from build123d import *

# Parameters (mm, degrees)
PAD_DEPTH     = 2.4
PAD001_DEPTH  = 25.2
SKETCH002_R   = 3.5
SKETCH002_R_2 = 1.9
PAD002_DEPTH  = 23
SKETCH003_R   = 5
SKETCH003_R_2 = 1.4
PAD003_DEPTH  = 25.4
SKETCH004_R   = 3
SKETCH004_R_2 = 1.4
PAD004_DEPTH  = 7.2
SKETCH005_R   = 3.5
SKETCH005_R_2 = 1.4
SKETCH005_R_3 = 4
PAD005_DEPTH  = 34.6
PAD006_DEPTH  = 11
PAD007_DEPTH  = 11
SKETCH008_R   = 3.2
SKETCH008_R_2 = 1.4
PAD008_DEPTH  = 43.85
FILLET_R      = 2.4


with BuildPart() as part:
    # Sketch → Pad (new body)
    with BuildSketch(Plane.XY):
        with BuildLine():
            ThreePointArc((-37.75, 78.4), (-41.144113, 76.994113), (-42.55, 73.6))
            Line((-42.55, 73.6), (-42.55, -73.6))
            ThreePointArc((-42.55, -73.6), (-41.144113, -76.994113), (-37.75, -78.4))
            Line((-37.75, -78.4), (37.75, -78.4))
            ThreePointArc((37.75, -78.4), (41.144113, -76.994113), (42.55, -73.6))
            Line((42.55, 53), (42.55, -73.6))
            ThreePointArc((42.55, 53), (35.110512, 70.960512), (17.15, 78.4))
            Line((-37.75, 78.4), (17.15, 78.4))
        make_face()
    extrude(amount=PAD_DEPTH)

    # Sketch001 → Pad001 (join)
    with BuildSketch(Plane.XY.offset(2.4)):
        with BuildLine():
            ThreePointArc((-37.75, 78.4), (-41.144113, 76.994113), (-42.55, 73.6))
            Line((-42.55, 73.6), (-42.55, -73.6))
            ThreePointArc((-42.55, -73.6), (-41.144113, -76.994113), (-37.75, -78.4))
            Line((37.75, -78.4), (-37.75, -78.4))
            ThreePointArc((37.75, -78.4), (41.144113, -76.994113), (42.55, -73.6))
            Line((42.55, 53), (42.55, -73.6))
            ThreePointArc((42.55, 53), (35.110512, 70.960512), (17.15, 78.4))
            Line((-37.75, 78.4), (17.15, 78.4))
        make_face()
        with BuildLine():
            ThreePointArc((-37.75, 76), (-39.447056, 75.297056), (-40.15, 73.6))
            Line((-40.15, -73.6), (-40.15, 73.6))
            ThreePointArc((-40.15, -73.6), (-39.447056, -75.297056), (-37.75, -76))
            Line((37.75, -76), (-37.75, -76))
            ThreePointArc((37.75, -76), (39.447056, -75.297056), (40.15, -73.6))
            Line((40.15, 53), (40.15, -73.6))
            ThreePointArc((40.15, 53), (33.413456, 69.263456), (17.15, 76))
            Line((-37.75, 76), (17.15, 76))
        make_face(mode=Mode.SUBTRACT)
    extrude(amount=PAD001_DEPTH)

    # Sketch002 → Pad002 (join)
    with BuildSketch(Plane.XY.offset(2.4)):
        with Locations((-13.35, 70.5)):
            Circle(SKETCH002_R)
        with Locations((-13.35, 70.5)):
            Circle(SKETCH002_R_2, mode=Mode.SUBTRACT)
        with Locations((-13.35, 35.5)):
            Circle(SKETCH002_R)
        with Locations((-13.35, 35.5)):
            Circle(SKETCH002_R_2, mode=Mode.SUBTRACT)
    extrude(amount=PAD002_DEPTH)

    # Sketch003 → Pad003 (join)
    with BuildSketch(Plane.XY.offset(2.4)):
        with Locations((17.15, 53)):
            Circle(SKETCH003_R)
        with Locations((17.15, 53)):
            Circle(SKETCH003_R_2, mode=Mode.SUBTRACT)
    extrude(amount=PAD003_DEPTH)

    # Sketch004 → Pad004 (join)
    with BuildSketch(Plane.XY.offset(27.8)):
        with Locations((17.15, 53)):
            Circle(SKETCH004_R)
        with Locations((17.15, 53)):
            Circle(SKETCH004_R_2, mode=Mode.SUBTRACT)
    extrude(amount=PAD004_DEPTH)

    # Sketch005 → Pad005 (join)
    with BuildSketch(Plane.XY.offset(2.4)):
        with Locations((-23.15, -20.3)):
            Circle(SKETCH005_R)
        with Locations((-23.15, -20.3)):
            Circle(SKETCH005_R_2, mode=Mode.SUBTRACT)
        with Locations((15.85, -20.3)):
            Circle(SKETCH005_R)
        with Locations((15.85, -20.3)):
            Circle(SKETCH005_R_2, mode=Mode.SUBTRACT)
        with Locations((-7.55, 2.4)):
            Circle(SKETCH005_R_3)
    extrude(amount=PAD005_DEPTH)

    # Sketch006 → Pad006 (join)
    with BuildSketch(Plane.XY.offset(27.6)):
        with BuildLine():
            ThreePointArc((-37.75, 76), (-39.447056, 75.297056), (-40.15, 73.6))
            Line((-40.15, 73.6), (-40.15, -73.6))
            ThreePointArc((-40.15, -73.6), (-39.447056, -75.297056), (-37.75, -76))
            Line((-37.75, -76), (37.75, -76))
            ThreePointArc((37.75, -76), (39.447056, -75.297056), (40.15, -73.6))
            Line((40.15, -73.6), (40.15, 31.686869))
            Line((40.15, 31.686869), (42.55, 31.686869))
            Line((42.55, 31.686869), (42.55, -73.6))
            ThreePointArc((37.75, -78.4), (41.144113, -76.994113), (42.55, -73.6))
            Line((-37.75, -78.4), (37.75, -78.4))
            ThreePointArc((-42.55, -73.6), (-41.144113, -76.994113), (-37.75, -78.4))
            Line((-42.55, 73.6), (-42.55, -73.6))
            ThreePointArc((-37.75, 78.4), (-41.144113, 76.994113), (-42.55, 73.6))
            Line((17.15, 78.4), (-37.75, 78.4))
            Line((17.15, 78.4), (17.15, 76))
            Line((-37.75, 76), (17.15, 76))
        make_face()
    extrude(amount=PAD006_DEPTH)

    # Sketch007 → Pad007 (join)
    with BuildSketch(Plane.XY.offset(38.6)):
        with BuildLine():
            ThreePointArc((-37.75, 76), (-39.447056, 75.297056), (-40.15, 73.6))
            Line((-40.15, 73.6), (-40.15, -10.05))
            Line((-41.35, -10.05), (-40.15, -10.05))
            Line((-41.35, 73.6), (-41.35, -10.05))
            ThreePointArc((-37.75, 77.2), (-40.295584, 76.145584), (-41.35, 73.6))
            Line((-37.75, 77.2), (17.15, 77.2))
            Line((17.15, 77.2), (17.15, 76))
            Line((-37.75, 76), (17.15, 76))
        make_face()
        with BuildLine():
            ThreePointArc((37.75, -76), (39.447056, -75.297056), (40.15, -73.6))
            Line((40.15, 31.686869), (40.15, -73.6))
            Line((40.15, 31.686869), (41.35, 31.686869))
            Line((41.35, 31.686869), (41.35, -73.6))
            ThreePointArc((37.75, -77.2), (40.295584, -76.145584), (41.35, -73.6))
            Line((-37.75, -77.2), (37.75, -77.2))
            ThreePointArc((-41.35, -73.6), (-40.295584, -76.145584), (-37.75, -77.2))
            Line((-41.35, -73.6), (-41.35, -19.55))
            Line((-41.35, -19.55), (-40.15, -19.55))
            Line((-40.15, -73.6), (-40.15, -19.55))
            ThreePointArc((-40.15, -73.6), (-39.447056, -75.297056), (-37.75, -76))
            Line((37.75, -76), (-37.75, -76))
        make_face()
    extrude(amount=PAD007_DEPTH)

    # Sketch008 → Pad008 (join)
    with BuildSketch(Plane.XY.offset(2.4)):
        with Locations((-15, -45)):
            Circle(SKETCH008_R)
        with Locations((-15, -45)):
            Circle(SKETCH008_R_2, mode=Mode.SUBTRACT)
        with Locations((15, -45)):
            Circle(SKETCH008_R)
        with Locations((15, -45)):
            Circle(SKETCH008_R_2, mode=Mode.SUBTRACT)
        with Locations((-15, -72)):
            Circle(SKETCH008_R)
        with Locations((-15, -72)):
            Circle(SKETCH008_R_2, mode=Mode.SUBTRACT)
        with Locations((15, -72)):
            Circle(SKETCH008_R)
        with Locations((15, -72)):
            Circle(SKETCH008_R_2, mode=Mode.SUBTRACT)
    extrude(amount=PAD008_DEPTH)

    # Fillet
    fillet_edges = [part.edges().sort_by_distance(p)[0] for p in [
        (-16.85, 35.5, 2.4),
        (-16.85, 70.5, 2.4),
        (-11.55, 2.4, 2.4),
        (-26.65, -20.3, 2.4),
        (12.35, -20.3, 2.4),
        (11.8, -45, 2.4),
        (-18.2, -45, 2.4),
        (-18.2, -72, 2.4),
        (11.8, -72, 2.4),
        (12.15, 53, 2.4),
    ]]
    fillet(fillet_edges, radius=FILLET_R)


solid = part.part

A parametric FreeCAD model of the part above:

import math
import FreeCAD as App
import Part
import Sketcher


def edges_at(feature, points):
    """Names of the edges that pass closest to the given points."""
    edges = feature.Shape.Edges
    near = lambda p: min(range(len(edges)), key=lambda i: edges[i].distToShape(Part.Vertex(*p))[0])
    return sorted({f"Edge{near(p) + 1}" for p in points})

doc = App.newDocument("Part")
body = doc.addObject("PartDesign::Body", "Body")

# Sketch on XY plane
sketch1 = body.newObject("Sketcher::SketchObject", "Sketch")
sketch1.AttachmentSupport = (doc.getObject("XY_Plane"), [""])
sketch1.MapMode = "FlatFace"
sketch1.addGeometry([
    Part.ArcOfCircle(Part.Circle(App.Vector(-37.750002, 73.600002, 0), App.Vector(0, 0, 1), 4.799998), math.radians(89.999982), math.radians(180.000018)),  # 0
    Part.LineSegment(App.Vector(-42.55, 73.6, 0), App.Vector(-42.55, -73.6, 0)),  # 1
    Part.ArcOfCircle(Part.Circle(App.Vector(-37.750002, -73.600002, 0), App.Vector(0, 0, 1), 4.799998), math.radians(179.999982), math.radians(270.000018)),  # 2
    Part.LineSegment(App.Vector(-37.75, -78.4, 0), App.Vector(37.75, -78.4, 0)),  # 3
    Part.ArcOfCircle(Part.Circle(App.Vector(37.750002, -73.600002, 0), App.Vector(0, 0, 1), 4.799998), math.radians(-90.000018), math.radians(0.000018)),  # 4
    Part.LineSegment(App.Vector(42.55, -73.6, 0), App.Vector(42.55, 53, 0)),  # 5
    Part.ArcOfCircle(Part.Circle(App.Vector(17.149999, 52.999999, 0), App.Vector(0, 0, 1), 25.400001), math.radians(0.000002), math.radians(89.999998)),  # 6
    Part.LineSegment(App.Vector(17.15, 78.4, 0), App.Vector(-37.75, 78.4, 0)),  # 7
], False)
sketch1.addConstraint([
    Sketcher.Constraint("Tangent", 0, 2, 1, 1),
    Sketcher.Constraint("Tangent", 1, 2, 2, 1),
    Sketcher.Constraint("Tangent", 2, 2, 3, 1),
    Sketcher.Constraint("Tangent", 3, 2, 4, 1),
    Sketcher.Constraint("Tangent", 4, 2, 5, 1),
    Sketcher.Constraint("Tangent", 5, 2, 6, 1),
    Sketcher.Constraint("Tangent", 6, 2, 7, 1),
    Sketcher.Constraint("Tangent", 7, 2, 0, 1),
    Sketcher.Constraint("Vertical", 1),
    Sketcher.Constraint("Horizontal", 3),
    Sketcher.Constraint("Vertical", 5),
    Sketcher.Constraint("Horizontal", 7),
    Sketcher.Constraint("Equal", 0, 2),
    Sketcher.Constraint("Equal", 2, 4),
    Sketcher.Constraint("Symmetric", 0, 3, 4, 3, -1, 1),
    Sketcher.Constraint("Radius", 0, 4.799998),
    Sketcher.Constraint("Radius", 6, 25.400001),
    Sketcher.Constraint("DistanceX", 3, 1, 3, 2, 75.5),
    Sketcher.Constraint("DistanceY", 1, 2, 1, 1, 147.2),
])
pad1 = body.newObject("PartDesign::Pad", "Pad")
pad1.Profile = sketch1
pad1.Length = 2.4

# Sketch on XY plane
sketch2 = body.newObject("Sketcher::SketchObject", "Sketch001")
sketch2.AttachmentSupport = (doc.getObject("XY_Plane"), [""])
sketch2.MapMode = "FlatFace"
sketch2.AttachmentOffset = App.Placement(App.Vector(0, 0, 2.4), App.Rotation())
sketch2.addGeometry([
    Part.ArcOfCircle(Part.Circle(App.Vector(-37.750002, 73.600002, 0), App.Vector(0, 0, 1), 4.799998), math.radians(89.999982), math.radians(180.000018)),  # 0
    Part.LineSegment(App.Vector(-42.55, 73.6, 0), App.Vector(-42.55, -73.6, 0)),  # 1
    Part.ArcOfCircle(Part.Circle(App.Vector(-37.750002, -73.600002, 0), App.Vector(0, 0, 1), 4.799998), math.radians(179.999982), math.radians(270.000018)),  # 2
    Part.LineSegment(App.Vector(-37.75, -78.4, 0), App.Vector(37.75, -78.4, 0)),  # 3
    Part.ArcOfCircle(Part.Circle(App.Vector(37.750002, -73.600002, 0), App.Vector(0, 0, 1), 4.799998), math.radians(-90.000018), math.radians(0.000018)),  # 4
    Part.LineSegment(App.Vector(42.55, -73.6, 0), App.Vector(42.55, 53, 0)),  # 5
    Part.ArcOfCircle(Part.Circle(App.Vector(17.149999, 52.999999, 0), App.Vector(0, 0, 1), 25.400001), math.radians(0.000002), math.radians(89.999998)),  # 6
    Part.LineSegment(App.Vector(17.15, 78.4, 0), App.Vector(-37.75, 78.4, 0)),  # 7
    Part.ArcOfCircle(Part.Circle(App.Vector(-37.749999, 73.599999, 0), App.Vector(0, 0, 1), 2.400001), math.radians(90.000022), math.radians(179.999978)),  # 8
    Part.LineSegment(App.Vector(-37.75, 76, 0), App.Vector(17.15, 76, 0)),  # 9
    Part.ArcOfCircle(Part.Circle(App.Vector(17.15, 53, 0), App.Vector(0, 0, 1), 23), math.radians(0), math.radians(90)),  # 10
    Part.LineSegment(App.Vector(40.15, 53, 0), App.Vector(40.15, -73.6, 0)),  # 11
    Part.ArcOfCircle(Part.Circle(App.Vector(37.749999, -73.599999, 0), App.Vector(0, 0, 1), 2.400001), math.radians(-89.999978), math.radians(-0.000022)),  # 12
    Part.LineSegment(App.Vector(37.75, -76, 0), App.Vector(-37.75, -76, 0)),  # 13
    Part.ArcOfCircle(Part.Circle(App.Vector(-37.749999, -73.599999, 0), App.Vector(0, 0, 1), 2.400001), math.radians(-179.999978), math.radians(-90.000022)),  # 14
    Part.LineSegment(App.Vector(-40.15, -73.6, 0), App.Vector(-40.15, 73.6, 0)),  # 15
], False)
sketch2.addConstraint([
    Sketcher.Constraint("Tangent", 0, 2, 1, 1),
    Sketcher.Constraint("Tangent", 1, 2, 2, 1),
    Sketcher.Constraint("Tangent", 2, 2, 3, 1),
    Sketcher.Constraint("Tangent", 3, 2, 4, 1),
    Sketcher.Constraint("Tangent", 4, 2, 5, 1),
    Sketcher.Constraint("Tangent", 5, 2, 6, 1),
    Sketcher.Constraint("Tangent", 6, 2, 7, 1),
    Sketcher.Constraint("Tangent", 7, 2, 0, 1),
    Sketcher.Constraint("Tangent", 8, 1, 9, 1),
    Sketcher.Constraint("Tangent", 9, 2, 10, 2),
    Sketcher.Constraint("Tangent", 10, 1, 11, 1),
    Sketcher.Constraint("Tangent", 11, 2, 12, 2),
    Sketcher.Constraint("Tangent", 12, 1, 13, 1),
    Sketcher.Constraint("Tangent", 13, 2, 14, 2),
    Sketcher.Constraint("Tangent", 14, 1, 15, 1),
    Sketcher.Constraint("Tangent", 15, 2, 8, 2),
    Sketcher.Constraint("Vertical", 1),
    Sketcher.Constraint("Horizontal", 3),
    Sketcher.Constraint("Vertical", 5),
    Sketcher.Constraint("Horizontal", 7),
    Sketcher.Constraint("Horizontal", 9),
    Sketcher.Constraint("Vertical", 11),
    Sketcher.Constraint("Horizontal", 13),
    Sketcher.Constraint("Vertical", 15),
    Sketcher.Constraint("Coincident", 8, 3, 0, 3),
    Sketcher.Constraint("Coincident", 10, 3, 6, 3),
    Sketcher.Constraint("Coincident", 12, 3, 4, 3),
    Sketcher.Constraint("Equal", 0, 2),
    Sketcher.Constraint("Equal", 2, 4),
    Sketcher.Constraint("Equal", 12, 14),
    Sketcher.Constraint("Symmetric", 0, 3, 4, 3, -1, 1),
    Sketcher.Constraint("Radius", 10, 23.0),
    Sketcher.Constraint("Radius", 0, 4.799998),
    Sketcher.Constraint("Radius", 6, 25.400001),
    Sketcher.Constraint("DistanceX", 3, 1, 3, 2, 75.5),
    Sketcher.Constraint("DistanceY", 1, 2, 1, 1, 147.2),
])
pad2 = body.newObject("PartDesign::Pad", "Pad001")
pad2.Profile = sketch2
pad2.Length = 25.2

# Sketch on XY plane
sketch3 = body.newObject("Sketcher::SketchObject", "Sketch002")
sketch3.AttachmentSupport = (doc.getObject("XY_Plane"), [""])
sketch3.MapMode = "FlatFace"
sketch3.AttachmentOffset = App.Placement(App.Vector(0, 0, 2.4), App.Rotation())
sketch3.addGeometry([
    Part.Circle(App.Vector(-13.35, 70.5, 0), App.Vector(0, 0, 1), 3.5),
    Part.Circle(App.Vector(-13.35, 70.5, 0), App.Vector(0, 0, 1), 1.9),
    Part.Circle(App.Vector(-13.35, 35.5, 0), App.Vector(0, 0, 1), 3.5),
    Part.Circle(App.Vector(-13.35, 35.5, 0), App.Vector(0, 0, 1), 1.9),
], False)
sketch3.addConstraint([
    Sketcher.Constraint("Coincident", 1, 3, 0, 3),
    Sketcher.Constraint("Coincident", 3, 3, 2, 3),
    Sketcher.Constraint("Equal", 0, 2),
    Sketcher.Constraint("Equal", 1, 3),
    Sketcher.Constraint("Vertical", 1, 3, 2, 3),
    Sketcher.Constraint("Diameter", 0, 7.0),
    Sketcher.Constraint("Diameter", 1, 3.8),
    Sketcher.Constraint("DistanceY", 2, 3, 0, 3, 35.0),
    Sketcher.Constraint("DistanceY", -1, 1, 0, 3, 70.5),
    Sketcher.Constraint("DistanceX", 0, 3, -1, 1, 13.35),
])
pad3 = body.newObject("PartDesign::Pad", "Pad002")
pad3.Profile = sketch3
pad3.Length = 23

# Sketch on XY plane
sketch4 = body.newObject("Sketcher::SketchObject", "Sketch003")
sketch4.AttachmentSupport = (doc.getObject("XY_Plane"), [""])
sketch4.MapMode = "FlatFace"
sketch4.AttachmentOffset = App.Placement(App.Vector(0, 0, 2.4), App.Rotation())
sketch4.addGeometry([
    Part.Circle(App.Vector(17.15, 53, 0), App.Vector(0, 0, 1), 5),
    Part.Circle(App.Vector(17.15, 53, 0), App.Vector(0, 0, 1), 1.4),
], False)
sketch4.addConstraint([
    Sketcher.Constraint("Coincident", 1, 3, 0, 3),
    Sketcher.Constraint("Diameter", 0, 10.0),
    Sketcher.Constraint("Diameter", 1, 2.8),
    Sketcher.Constraint("DistanceY", -1, 1, 0, 3, 53.0),
    Sketcher.Constraint("DistanceX", -1, 1, 0, 3, 17.15),
])
pad4 = body.newObject("PartDesign::Pad", "Pad003")
pad4.Profile = sketch4
pad4.Length = 25.4

# Sketch on XY plane
sketch5 = body.newObject("Sketcher::SketchObject", "Sketch004")
sketch5.AttachmentSupport = (doc.getObject("XY_Plane"), [""])
sketch5.MapMode = "FlatFace"
sketch5.AttachmentOffset = App.Placement(App.Vector(0, 0, 27.8), App.Rotation())
sketch5.addGeometry([
    Part.Circle(App.Vector(17.15, 53, 0), App.Vector(0, 0, 1), 3),
    Part.Circle(App.Vector(17.15, 53, 0), App.Vector(0, 0, 1), 1.4),
], False)
sketch5.addConstraint([
    Sketcher.Constraint("Coincident", 1, 3, 0, 3),
    Sketcher.Constraint("Diameter", 0, 6.0),
    Sketcher.Constraint("Diameter", 1, 2.8),
    Sketcher.Constraint("DistanceY", -1, 1, 0, 3, 53.0),
    Sketcher.Constraint("DistanceX", -1, 1, 0, 3, 17.15),
])
pad5 = body.newObject("PartDesign::Pad", "Pad004")
pad5.Profile = sketch5
pad5.Length = 7.2

# Sketch on XY plane
sketch6 = body.newObject("Sketcher::SketchObject", "Sketch005")
sketch6.AttachmentSupport = (doc.getObject("XY_Plane"), [""])
sketch6.MapMode = "FlatFace"
sketch6.AttachmentOffset = App.Placement(App.Vector(0, 0, 2.4), App.Rotation())
sketch6.addGeometry([
    Part.Circle(App.Vector(-23.15, -20.3, 0), App.Vector(0, 0, 1), 3.5),  # 0
    Part.Circle(App.Vector(-23.15, -20.3, 0), App.Vector(0, 0, 1), 1.4),  # 1
    Part.Circle(App.Vector(15.85, -20.3, 0), App.Vector(0, 0, 1), 3.5),  # 2
    Part.Circle(App.Vector(15.85, -20.3, 0), App.Vector(0, 0, 1), 1.4),  # 3
    Part.Circle(App.Vector(-7.55, 2.4, 0), App.Vector(0, 0, 1), 4),  # 4
], False)
sketch6.addConstraint([
    Sketcher.Constraint("Coincident", 1, 3, 0, 3),
    Sketcher.Constraint("Coincident", 3, 3, 2, 3),
    Sketcher.Constraint("Equal", 0, 2),
    Sketcher.Constraint("Equal", 1, 3),
    Sketcher.Constraint("Horizontal", 1, 3, 2, 3),
    Sketcher.Constraint("Diameter", 0, 7.0),
    Sketcher.Constraint("Diameter", 4, 8.0),
    Sketcher.Constraint("Diameter", 1, 2.8),
    Sketcher.Constraint("DistanceX", 0, 3, 2, 3, 39.0),
    Sketcher.Constraint("DistanceY", 0, 3, -1, 1, 20.3),
    Sketcher.Constraint("DistanceY", -1, 1, 4, 3, 2.4),
    Sketcher.Constraint("DistanceX", 0, 3, 4, 3, 15.6),
    Sketcher.Constraint("DistanceX", 0, 3, -1, 1, 23.15),
])
pad6 = body.newObject("PartDesign::Pad", "Pad005")
pad6.Profile = sketch6
pad6.Length = 34.6

# Sketch on XY plane
sketch7 = body.newObject("Sketcher::SketchObject", "Sketch006")
sketch7.AttachmentSupport = (doc.getObject("XY_Plane"), [""])
sketch7.MapMode = "FlatFace"
sketch7.AttachmentOffset = App.Placement(App.Vector(0, 0, 27.6), App.Rotation())
sketch7.addGeometry([
    Part.ArcOfCircle(Part.Circle(App.Vector(-37.749999, 73.599999, 0), App.Vector(0, 0, 1), 2.400001), math.radians(90.000022), math.radians(179.999978)),  # 0
    Part.LineSegment(App.Vector(-37.75, 76, 0), App.Vector(17.15, 76, 0)),  # 1
    Part.LineSegment(App.Vector(17.15, 76, 0), App.Vector(17.15, 78.4, 0)),  # 2
    Part.LineSegment(App.Vector(17.15, 78.4, 0), App.Vector(-37.75, 78.4, 0)),  # 3
    Part.ArcOfCircle(Part.Circle(App.Vector(-37.750002, 73.600002, 0), App.Vector(0, 0, 1), 4.799998), math.radians(89.999982), math.radians(180.000018)),  # 4
    Part.LineSegment(App.Vector(-42.55, 73.6, 0), App.Vector(-42.55, -73.6, 0)),  # 5
    Part.ArcOfCircle(Part.Circle(App.Vector(-37.750002, -73.600002, 0), App.Vector(0, 0, 1), 4.799998), math.radians(179.999982), math.radians(270.000018)),  # 6
    Part.LineSegment(App.Vector(-37.75, -78.4, 0), App.Vector(37.75, -78.4, 0)),  # 7
    Part.ArcOfCircle(Part.Circle(App.Vector(37.750002, -73.600002, 0), App.Vector(0, 0, 1), 4.799998), math.radians(-90.000018), math.radians(0.000018)),  # 8
    Part.LineSegment(App.Vector(42.55, -73.6, 0), App.Vector(42.55, 31.686869, 0)),  # 9
    Part.LineSegment(App.Vector(42.55, 31.686869, 0), App.Vector(40.15, 31.686869, 0)),  # 10
    Part.LineSegment(App.Vector(40.15, 31.686869, 0), App.Vector(40.15, -73.6, 0)),  # 11
    Part.ArcOfCircle(Part.Circle(App.Vector(37.749999, -73.599999, 0), App.Vector(0, 0, 1), 2.400001), math.radians(-89.999978), math.radians(-0.000022)),  # 12
    Part.LineSegment(App.Vector(37.75, -76, 0), App.Vector(-37.75, -76, 0)),  # 13
    Part.ArcOfCircle(Part.Circle(App.Vector(-37.749999, -73.599999, 0), App.Vector(0, 0, 1), 2.400001), math.radians(-179.999978), math.radians(-90.000022)),  # 14
    Part.LineSegment(App.Vector(-40.15, -73.6, 0), App.Vector(-40.15, 73.6, 0)),  # 15
], False)
sketch7.addConstraint([
    Sketcher.Constraint("Tangent", 0, 1, 1, 1),
    Sketcher.Constraint("Coincident", 1, 2, 2, 1),
    Sketcher.Constraint("Coincident", 2, 2, 3, 1),
    Sketcher.Constraint("Tangent", 3, 2, 4, 1),
    Sketcher.Constraint("Tangent", 4, 2, 5, 1),
    Sketcher.Constraint("Tangent", 5, 2, 6, 1),
    Sketcher.Constraint("Tangent", 6, 2, 7, 1),
    Sketcher.Constraint("Tangent", 7, 2, 8, 1),
    Sketcher.Constraint("Tangent", 8, 2, 9, 1),
    Sketcher.Constraint("Coincident", 9, 2, 10, 1),
    Sketcher.Constraint("Coincident", 10, 2, 11, 1),
    Sketcher.Constraint("Tangent", 11, 2, 12, 2),
    Sketcher.Constraint("Tangent", 12, 1, 13, 1),
    Sketcher.Constraint("Tangent", 13, 2, 14, 2),
    Sketcher.Constraint("Tangent", 14, 1, 15, 1),
    Sketcher.Constraint("Tangent", 15, 2, 0, 2),
    Sketcher.Constraint("Horizontal", 1),
    Sketcher.Constraint("Vertical", 2),
    Sketcher.Constraint("Horizontal", 3),
    Sketcher.Constraint("Vertical", 5),
    Sketcher.Constraint("Horizontal", 7),
    Sketcher.Constraint("Vertical", 9),
    Sketcher.Constraint("Horizontal", 10),
    Sketcher.Constraint("Vertical", 11),
    Sketcher.Constraint("Horizontal", 13),
    Sketcher.Constraint("Vertical", 15),
    Sketcher.Constraint("Coincident", 4, 3, 0, 3),
    Sketcher.Constraint("Coincident", 12, 3, 8, 3),
    Sketcher.Constraint("Coincident", 14, 3, 6, 3),
    Sketcher.Constraint("Equal", 4, 6),
    Sketcher.Constraint("Equal", 6, 8),
    Sketcher.Constraint("Symmetric", 0, 3, 8, 3, -1, 1),
    Sketcher.Constraint("Radius", 0, 2.400001),
    Sketcher.Constraint("Radius", 4, 4.799998),
    Sketcher.Constraint("DistanceX", 1, 1, 1, 2, 54.9),
    Sketcher.Constraint("DistanceX", 7, 1, 7, 2, 75.5),
    Sketcher.Constraint("DistanceY", 5, 2, 5, 1, 147.2),
    Sketcher.Constraint("DistanceY", 9, 1, 9, 2, 105.286869),
])
pad7 = body.newObject("PartDesign::Pad", "Pad006")
pad7.Profile = sketch7
pad7.Length = 11

# Sketch on XY plane
sketch8 = body.newObject("Sketcher::SketchObject", "Sketch007")
sketch8.AttachmentSupport = (doc.getObject("XY_Plane"), [""])
sketch8.MapMode = "FlatFace"
sketch8.AttachmentOffset = App.Placement(App.Vector(0, 0, 38.6), App.Rotation())
sketch8.addGeometry([
    Part.ArcOfCircle(Part.Circle(App.Vector(-37.749999, 73.599999, 0), App.Vector(0, 0, 1), 2.400001), math.radians(90.000022), math.radians(179.999978)),  # 0
    Part.LineSegment(App.Vector(-37.75, 76, 0), App.Vector(17.15, 76, 0)),  # 1
    Part.LineSegment(App.Vector(17.15, 76, 0), App.Vector(17.15, 77.2, 0)),  # 2
    Part.LineSegment(App.Vector(17.15, 77.2, 0), App.Vector(-37.75, 77.2, 0)),  # 3
    Part.ArcOfCircle(Part.Circle(App.Vector(-37.749999, 73.599999, 0), App.Vector(0, 0, 1), 3.600001), math.radians(90.000022), math.radians(179.999978)),  # 4
    Part.LineSegment(App.Vector(-41.35, 73.6, 0), App.Vector(-41.35, -10.05, 0)),  # 5
    Part.LineSegment(App.Vector(-41.35, -10.05, 0), App.Vector(-40.15, -10.05, 0)),  # 6
    Part.LineSegment(App.Vector(-40.15, -10.05, 0), App.Vector(-40.15, 73.6, 0)),  # 7
    Part.ArcOfCircle(Part.Circle(App.Vector(37.749999, -73.599999, 0), App.Vector(0, 0, 1), 2.400001), math.radians(-89.999978), math.radians(-0.000022)),  # 8
    Part.LineSegment(App.Vector(37.75, -76, 0), App.Vector(-37.75, -76, 0)),  # 9
    Part.ArcOfCircle(Part.Circle(App.Vector(-37.749999, -73.599999, 0), App.Vector(0, 0, 1), 2.400001), math.radians(-179.999978), math.radians(-90.000022)),  # 10
    Part.LineSegment(App.Vector(-40.15, -73.6, 0), App.Vector(-40.15, -19.55, 0)),  # 11
    Part.LineSegment(App.Vector(-40.15, -19.55, 0), App.Vector(-41.35, -19.55, 0)),  # 12
    Part.LineSegment(App.Vector(-41.35, -19.55, 0), App.Vector(-41.35, -73.6, 0)),  # 13
    Part.ArcOfCircle(Part.Circle(App.Vector(-37.749999, -73.599999, 0), App.Vector(0, 0, 1), 3.600001), math.radians(-179.999978), math.radians(-90.000022)),  # 14
    Part.LineSegment(App.Vector(-37.75, -77.2, 0), App.Vector(37.75, -77.2, 0)),  # 15
    Part.ArcOfCircle(Part.Circle(App.Vector(37.749999, -73.599999, 0), App.Vector(0, 0, 1), 3.600001), math.radians(-89.999978), math.radians(-0.000022)),  # 16
    Part.LineSegment(App.Vector(41.35, -73.6, 0), App.Vector(41.35, 31.686869, 0)),  # 17
    Part.LineSegment(App.Vector(41.35, 31.686869, 0), App.Vector(40.15, 31.686869, 0)),  # 18
    Part.LineSegment(App.Vector(40.15, 31.686869, 0), App.Vector(40.15, -73.6, 0)),  # 19
], False)
sketch8.addConstraint([
    Sketcher.Constraint("Tangent", 0, 1, 1, 1),
    Sketcher.Constraint("Coincident", 1, 2, 2, 1),
    Sketcher.Constraint("Coincident", 2, 2, 3, 1),
    Sketcher.Constraint("Tangent", 3, 2, 4, 1),
    Sketcher.Constraint("Tangent", 4, 2, 5, 1),
    Sketcher.Constraint("Coincident", 5, 2, 6, 1),
    Sketcher.Constraint("Coincident", 6, 2, 7, 1),
    Sketcher.Constraint("Tangent", 7, 2, 0, 2),
    Sketcher.Constraint("Tangent", 8, 1, 9, 1),
    Sketcher.Constraint("Tangent", 9, 2, 10, 2),
    Sketcher.Constraint("Tangent", 10, 1, 11, 1),
    Sketcher.Constraint("Coincident", 11, 2, 12, 1),
    Sketcher.Constraint("Coincident", 12, 2, 13, 1),
    Sketcher.Constraint("Tangent", 13, 2, 14, 1),
    Sketcher.Constraint("Tangent", 14, 2, 15, 1),
    Sketcher.Constraint("Tangent", 15, 2, 16, 1),
    Sketcher.Constraint("Tangent", 16, 2, 17, 1),
    Sketcher.Constraint("Coincident", 17, 2, 18, 1),
    Sketcher.Constraint("Coincident", 18, 2, 19, 1),
    Sketcher.Constraint("Tangent", 19, 2, 8, 2),
    Sketcher.Constraint("Horizontal", 1),
    Sketcher.Constraint("Vertical", 2),
    Sketcher.Constraint("Horizontal", 3),
    Sketcher.Constraint("Vertical", 5),
    Sketcher.Constraint("Horizontal", 6),
    Sketcher.Constraint("Vertical", 7),
    Sketcher.Constraint("Horizontal", 9),
    Sketcher.Constraint("Vertical", 11),
    Sketcher.Constraint("Horizontal", 12),
    Sketcher.Constraint("Vertical", 13),
    Sketcher.Constraint("Horizontal", 15),
    Sketcher.Constraint("Vertical", 17),
    Sketcher.Constraint("Horizontal", 18),
    Sketcher.Constraint("Vertical", 19),
    Sketcher.Constraint("Coincident", 4, 3, 0, 3),
    Sketcher.Constraint("Coincident", 14, 3, 10, 3),
    Sketcher.Constraint("Coincident", 16, 3, 8, 3),
    Sketcher.Constraint("Equal", 0, 8),
    Sketcher.Constraint("Equal", 8, 10),
    Sketcher.Constraint("Equal", 4, 14),
    Sketcher.Constraint("Symmetric", 0, 3, 8, 3, -1, 1),
    Sketcher.Constraint("Vertical", 4, 3, 10, 3),
    Sketcher.Constraint("Radius", 0, 2.400001),
    Sketcher.Constraint("Radius", 4, 3.600001),
    Sketcher.Constraint("DistanceX", 1, 1, 1, 2, 54.9),
    Sketcher.Constraint("DistanceX", 9, 2, 9, 1, 75.5),
    Sketcher.Constraint("DistanceY", -1, 1, 0, 1, 76.0),
    Sketcher.Constraint("DistanceY", 5, 2, 5, 1, 83.65),
    Sketcher.Constraint("DistanceY", 11, 1, 11, 2, 54.05),
    Sketcher.Constraint("DistanceY", 17, 1, 17, 2, 105.286869),
])
pad8 = body.newObject("PartDesign::Pad", "Pad007")
pad8.Profile = sketch8
pad8.Length = 11

# Sketch on XY plane
sketch9 = body.newObject("Sketcher::SketchObject", "Sketch008")
sketch9.AttachmentSupport = (doc.getObject("XY_Plane"), [""])
sketch9.MapMode = "FlatFace"
sketch9.AttachmentOffset = App.Placement(App.Vector(0, 0, 2.4), App.Rotation())
sketch9.addGeometry([
    Part.Circle(App.Vector(-15, -45, 0), App.Vector(0, 0, 1), 3.2),  # 0
    Part.Circle(App.Vector(-15, -45, 0), App.Vector(0, 0, 1), 1.4),  # 1
    Part.Circle(App.Vector(15, -45, 0), App.Vector(0, 0, 1), 3.2),  # 2
    Part.Circle(App.Vector(15, -45, 0), App.Vector(0, 0, 1), 1.4),  # 3
    Part.Circle(App.Vector(-15, -72, 0), App.Vector(0, 0, 1), 3.2),  # 4
    Part.Circle(App.Vector(-15, -72, 0), App.Vector(0, 0, 1), 1.4),  # 5
    Part.Circle(App.Vector(15, -72, 0), App.Vector(0, 0, 1), 3.2),  # 6
    Part.Circle(App.Vector(15, -72, 0), App.Vector(0, 0, 1), 1.4),  # 7
], False)
sketch9.addConstraint([
    Sketcher.Constraint("Coincident", 1, 3, 0, 3),
    Sketcher.Constraint("Coincident", 3, 3, 2, 3),
    Sketcher.Constraint("Coincident", 5, 3, 4, 3),
    Sketcher.Constraint("Coincident", 7, 3, 6, 3),
    Sketcher.Constraint("Equal", 0, 2),
    Sketcher.Constraint("Equal", 1, 3),
    Sketcher.Constraint("Equal", 2, 4),
    Sketcher.Constraint("Equal", 3, 5),
    Sketcher.Constraint("Equal", 4, 6),
    Sketcher.Constraint("Equal", 5, 7),
    Sketcher.Constraint("Symmetric", 0, 3, 2, 3, -2),
    Sketcher.Constraint("Symmetric", 4, 3, 6, 3, -2),
    Sketcher.Constraint("Vertical", 1, 3, 4, 3),
    Sketcher.Constraint("Diameter", 0, 6.4),
    Sketcher.Constraint("Diameter", 1, 2.8),
    Sketcher.Constraint("DistanceX", 0, 3, -1, 1, 15.0),
    Sketcher.Constraint("DistanceY", 0, 3, -1, 1, 45.0),
    Sketcher.Constraint("DistanceY", 4, 3, -1, 1, 72.0),
])
pad9 = body.newObject("PartDesign::Pad", "Pad008")
pad9.Profile = sketch9
pad9.Length = 43.85
doc.recompute()

fillet = body.newObject("PartDesign::Fillet", "Fillet")
fillet.Base = (pad9, edges_at(pad9, [
    (-16.85, 35.5, 2.4),
    (-16.85, 70.5, 2.4),
    (-11.55, 2.4, 2.4),
    (-26.65, -20.3, 2.4),
    (12.35, -20.3, 2.4),
    (11.8, -45, 2.4),
    (-18.2, -45, 2.4),
    (-18.2, -72, 2.4),
    (11.8, -72, 2.4),
    (12.15, 53, 2.4),
]))
fillet.Radius = 2.4

doc.recompute()
